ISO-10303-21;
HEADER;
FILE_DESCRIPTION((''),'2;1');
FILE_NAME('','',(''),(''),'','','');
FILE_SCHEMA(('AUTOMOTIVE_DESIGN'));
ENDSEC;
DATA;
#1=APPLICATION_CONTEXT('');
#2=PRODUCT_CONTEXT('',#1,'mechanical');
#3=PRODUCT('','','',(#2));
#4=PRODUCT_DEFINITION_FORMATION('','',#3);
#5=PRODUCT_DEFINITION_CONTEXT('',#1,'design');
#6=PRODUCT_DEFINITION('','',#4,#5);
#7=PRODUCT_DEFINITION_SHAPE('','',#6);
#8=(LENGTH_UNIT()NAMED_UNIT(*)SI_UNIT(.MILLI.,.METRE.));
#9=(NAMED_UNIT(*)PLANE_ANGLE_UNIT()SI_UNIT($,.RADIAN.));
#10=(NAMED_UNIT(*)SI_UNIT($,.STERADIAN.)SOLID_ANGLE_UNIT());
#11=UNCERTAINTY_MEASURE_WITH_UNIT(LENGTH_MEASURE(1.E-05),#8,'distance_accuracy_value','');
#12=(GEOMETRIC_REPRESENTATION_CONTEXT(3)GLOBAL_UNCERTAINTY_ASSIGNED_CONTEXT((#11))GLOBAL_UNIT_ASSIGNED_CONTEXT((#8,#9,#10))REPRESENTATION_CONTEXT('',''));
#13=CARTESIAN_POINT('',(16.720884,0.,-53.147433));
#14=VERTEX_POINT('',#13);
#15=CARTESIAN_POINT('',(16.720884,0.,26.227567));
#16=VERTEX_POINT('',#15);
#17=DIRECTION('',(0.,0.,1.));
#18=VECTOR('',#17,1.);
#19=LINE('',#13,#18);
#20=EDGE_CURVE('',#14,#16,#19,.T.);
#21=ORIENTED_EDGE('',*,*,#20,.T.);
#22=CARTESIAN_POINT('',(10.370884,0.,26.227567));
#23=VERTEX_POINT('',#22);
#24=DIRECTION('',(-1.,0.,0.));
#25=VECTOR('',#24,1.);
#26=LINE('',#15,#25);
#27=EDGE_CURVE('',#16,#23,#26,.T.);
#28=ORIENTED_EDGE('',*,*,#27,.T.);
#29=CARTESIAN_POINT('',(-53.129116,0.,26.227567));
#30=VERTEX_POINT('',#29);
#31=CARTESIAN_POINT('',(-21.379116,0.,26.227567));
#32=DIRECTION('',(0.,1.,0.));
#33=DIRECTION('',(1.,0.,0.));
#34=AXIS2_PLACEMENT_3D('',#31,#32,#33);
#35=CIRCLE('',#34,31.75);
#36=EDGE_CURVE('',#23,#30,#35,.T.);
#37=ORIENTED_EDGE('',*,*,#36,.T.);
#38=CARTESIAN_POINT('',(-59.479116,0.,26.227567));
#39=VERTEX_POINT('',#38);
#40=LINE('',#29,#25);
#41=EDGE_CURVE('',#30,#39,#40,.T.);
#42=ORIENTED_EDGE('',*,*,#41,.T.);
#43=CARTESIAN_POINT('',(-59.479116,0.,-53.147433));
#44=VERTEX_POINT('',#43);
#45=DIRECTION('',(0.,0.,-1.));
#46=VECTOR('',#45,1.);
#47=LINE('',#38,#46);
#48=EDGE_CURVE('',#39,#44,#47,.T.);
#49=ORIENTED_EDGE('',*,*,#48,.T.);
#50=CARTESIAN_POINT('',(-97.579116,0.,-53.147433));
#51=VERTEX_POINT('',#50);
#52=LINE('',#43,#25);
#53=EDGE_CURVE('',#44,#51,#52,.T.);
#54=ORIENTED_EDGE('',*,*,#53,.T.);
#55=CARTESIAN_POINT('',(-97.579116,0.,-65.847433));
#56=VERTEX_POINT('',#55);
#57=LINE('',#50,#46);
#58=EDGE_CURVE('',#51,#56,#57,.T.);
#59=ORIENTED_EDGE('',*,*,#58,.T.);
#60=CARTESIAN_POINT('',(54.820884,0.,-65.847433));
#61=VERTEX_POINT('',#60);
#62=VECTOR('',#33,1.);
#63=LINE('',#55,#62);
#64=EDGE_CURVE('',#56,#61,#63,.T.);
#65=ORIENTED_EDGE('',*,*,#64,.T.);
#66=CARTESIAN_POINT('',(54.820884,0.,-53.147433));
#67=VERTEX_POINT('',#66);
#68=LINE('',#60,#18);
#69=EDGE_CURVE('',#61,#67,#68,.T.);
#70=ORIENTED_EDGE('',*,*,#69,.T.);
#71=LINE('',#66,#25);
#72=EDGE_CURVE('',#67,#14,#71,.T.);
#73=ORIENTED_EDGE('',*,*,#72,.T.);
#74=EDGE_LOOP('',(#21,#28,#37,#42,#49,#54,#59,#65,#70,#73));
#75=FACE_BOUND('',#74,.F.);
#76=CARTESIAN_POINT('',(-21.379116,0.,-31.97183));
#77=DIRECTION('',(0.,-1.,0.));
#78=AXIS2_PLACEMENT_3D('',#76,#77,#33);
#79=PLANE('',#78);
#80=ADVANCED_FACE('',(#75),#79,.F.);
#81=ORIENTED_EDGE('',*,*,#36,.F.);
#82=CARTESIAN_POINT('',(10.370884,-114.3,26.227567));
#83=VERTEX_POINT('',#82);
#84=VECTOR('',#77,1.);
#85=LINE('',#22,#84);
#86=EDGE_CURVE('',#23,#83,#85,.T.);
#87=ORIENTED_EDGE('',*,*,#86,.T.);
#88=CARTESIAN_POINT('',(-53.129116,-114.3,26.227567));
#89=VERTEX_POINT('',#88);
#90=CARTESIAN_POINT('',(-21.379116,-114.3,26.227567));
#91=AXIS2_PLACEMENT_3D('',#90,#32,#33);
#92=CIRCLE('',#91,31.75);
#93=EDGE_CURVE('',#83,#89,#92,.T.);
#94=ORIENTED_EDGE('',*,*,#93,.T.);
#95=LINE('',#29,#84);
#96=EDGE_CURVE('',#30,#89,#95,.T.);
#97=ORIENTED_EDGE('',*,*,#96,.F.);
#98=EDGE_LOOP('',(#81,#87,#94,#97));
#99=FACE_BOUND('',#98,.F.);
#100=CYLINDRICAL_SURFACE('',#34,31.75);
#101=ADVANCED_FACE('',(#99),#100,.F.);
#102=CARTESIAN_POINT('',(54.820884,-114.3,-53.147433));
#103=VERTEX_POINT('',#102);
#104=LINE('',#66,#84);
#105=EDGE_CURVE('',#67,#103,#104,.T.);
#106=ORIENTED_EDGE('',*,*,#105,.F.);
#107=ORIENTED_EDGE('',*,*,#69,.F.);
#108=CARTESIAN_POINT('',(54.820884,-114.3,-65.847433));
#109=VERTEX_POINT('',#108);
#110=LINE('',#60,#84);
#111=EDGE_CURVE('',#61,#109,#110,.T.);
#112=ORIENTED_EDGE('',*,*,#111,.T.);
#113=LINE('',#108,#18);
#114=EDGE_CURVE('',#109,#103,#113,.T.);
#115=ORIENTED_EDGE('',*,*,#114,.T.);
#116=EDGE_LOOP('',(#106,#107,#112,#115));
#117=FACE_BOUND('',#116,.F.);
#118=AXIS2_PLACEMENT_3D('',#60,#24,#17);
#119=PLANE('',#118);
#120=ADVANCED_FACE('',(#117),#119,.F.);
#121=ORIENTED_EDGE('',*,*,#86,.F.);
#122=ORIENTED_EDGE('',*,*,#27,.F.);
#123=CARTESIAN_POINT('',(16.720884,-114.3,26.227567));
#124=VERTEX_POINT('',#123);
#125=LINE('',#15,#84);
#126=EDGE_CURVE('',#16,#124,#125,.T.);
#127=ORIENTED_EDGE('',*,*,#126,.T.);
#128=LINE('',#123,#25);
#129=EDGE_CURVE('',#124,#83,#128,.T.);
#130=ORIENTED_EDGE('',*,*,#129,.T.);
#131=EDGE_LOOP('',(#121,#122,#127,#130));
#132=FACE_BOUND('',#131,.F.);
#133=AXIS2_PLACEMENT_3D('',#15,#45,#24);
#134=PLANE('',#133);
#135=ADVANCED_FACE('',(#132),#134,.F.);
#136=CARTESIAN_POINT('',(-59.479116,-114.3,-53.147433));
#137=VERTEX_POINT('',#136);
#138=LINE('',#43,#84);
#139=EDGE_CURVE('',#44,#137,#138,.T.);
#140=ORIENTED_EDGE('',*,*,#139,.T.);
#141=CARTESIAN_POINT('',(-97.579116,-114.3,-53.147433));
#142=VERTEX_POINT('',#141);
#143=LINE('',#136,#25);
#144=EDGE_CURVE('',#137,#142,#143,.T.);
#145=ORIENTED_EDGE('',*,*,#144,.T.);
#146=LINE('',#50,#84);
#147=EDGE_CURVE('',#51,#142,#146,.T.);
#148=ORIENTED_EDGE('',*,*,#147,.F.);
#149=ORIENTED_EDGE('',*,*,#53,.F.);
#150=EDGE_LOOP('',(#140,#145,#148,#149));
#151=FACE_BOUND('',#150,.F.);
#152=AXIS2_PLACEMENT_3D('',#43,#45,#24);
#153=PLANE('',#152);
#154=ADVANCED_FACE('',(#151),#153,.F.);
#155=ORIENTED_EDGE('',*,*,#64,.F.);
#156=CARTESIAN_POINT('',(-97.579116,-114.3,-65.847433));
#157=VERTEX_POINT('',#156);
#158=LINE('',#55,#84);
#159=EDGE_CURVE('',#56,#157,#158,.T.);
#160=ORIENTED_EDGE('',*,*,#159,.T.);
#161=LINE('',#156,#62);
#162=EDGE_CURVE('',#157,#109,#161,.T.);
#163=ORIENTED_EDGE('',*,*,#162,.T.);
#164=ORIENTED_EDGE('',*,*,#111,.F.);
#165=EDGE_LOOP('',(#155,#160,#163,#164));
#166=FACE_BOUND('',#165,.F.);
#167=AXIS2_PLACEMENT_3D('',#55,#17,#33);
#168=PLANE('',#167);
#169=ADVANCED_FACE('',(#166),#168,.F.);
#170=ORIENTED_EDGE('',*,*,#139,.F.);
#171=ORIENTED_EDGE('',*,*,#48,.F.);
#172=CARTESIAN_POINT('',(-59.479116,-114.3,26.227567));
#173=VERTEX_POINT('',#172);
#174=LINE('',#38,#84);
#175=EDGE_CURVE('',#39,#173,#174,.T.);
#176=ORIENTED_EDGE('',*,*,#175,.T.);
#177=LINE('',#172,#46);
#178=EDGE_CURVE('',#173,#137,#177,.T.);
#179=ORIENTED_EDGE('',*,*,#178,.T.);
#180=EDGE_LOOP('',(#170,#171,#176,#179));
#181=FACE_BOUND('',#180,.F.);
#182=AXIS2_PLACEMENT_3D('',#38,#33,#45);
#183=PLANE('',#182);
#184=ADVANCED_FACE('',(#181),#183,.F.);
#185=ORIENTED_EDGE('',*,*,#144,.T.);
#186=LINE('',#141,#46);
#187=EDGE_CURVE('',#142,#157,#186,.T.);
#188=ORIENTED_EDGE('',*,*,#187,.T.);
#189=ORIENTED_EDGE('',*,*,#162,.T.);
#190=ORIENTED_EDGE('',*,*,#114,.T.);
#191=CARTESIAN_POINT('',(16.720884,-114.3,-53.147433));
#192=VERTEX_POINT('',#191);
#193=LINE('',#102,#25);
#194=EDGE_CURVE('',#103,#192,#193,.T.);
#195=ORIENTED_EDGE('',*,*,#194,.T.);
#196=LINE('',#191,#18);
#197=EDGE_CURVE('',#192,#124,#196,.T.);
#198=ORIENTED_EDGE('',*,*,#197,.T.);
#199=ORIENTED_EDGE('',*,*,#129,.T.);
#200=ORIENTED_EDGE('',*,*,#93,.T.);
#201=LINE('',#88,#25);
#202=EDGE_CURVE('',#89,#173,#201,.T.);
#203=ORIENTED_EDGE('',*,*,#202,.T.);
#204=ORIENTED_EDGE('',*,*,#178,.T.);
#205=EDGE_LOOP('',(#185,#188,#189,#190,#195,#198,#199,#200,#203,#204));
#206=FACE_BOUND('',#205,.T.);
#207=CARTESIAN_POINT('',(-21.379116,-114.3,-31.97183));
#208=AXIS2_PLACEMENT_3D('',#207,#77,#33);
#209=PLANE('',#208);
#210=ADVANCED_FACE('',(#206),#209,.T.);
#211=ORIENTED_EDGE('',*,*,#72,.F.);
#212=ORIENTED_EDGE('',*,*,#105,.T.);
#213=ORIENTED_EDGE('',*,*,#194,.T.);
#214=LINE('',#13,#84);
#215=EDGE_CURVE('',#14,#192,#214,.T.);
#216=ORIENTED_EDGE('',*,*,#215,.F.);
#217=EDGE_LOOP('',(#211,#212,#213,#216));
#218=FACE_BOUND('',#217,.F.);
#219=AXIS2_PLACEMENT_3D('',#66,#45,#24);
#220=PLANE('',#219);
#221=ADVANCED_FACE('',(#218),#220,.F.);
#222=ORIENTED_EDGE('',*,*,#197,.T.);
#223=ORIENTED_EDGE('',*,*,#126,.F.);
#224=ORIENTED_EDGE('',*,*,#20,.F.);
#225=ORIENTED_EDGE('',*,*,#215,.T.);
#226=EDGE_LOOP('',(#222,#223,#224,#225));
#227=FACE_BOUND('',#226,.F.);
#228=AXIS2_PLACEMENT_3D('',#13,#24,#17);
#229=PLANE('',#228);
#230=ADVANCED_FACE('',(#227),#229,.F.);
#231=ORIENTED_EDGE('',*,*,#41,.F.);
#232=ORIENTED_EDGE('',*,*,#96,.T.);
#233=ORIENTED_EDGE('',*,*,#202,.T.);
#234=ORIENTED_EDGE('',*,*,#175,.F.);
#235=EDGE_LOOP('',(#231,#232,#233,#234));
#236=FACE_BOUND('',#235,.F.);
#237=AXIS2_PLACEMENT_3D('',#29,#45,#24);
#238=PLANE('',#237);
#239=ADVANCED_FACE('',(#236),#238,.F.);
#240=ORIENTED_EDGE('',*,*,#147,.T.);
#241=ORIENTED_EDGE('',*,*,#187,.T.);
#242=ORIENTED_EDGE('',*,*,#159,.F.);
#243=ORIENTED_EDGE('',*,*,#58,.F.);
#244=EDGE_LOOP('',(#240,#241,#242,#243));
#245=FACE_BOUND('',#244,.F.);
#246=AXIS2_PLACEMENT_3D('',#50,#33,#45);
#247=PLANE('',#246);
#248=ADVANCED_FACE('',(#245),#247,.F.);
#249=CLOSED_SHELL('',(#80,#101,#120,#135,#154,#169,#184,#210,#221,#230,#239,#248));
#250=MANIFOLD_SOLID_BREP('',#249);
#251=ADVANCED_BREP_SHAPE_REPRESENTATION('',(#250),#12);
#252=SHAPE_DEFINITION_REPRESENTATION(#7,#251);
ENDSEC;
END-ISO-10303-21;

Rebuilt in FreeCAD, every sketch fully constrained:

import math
import FreeCAD as App
import Part
import Sketcher
from FreeCAD import Vector
Q = App.Units.Quantity

doc = App.newDocument("Part")
params = doc.addObject("Spreadsheet::Sheet", "Params")
for row, (alias, value) in enumerate([
    ("sketch1_width", "6 in"),
    ("sketch1_radius", "1.25 in"),
    ("sketch1_width2", "1.5 in"),
    ("sketch1_height", "0.5 in"),
    ("sketch1_height2", "3.125 in"),
    ("pad1_length", "4.5 in"),
], start=1):
    params.set(f"A{row}", alias)
    params.set(f"B{row}", "=" + value)
    params.setAlias(f"B{row}", alias)

body = doc.addObject("PartDesign::Body", "Body")

sketch1 = body.newObject("Sketcher::SketchObject", "Sketch")
sketch1.AttachmentSupport = (doc.getObject("XZ_Plane"), [""])
sketch1.MapMode = "FlatFace"
sketch1.addGeometry(Part.LineSegment(Vector(-97.579116, -53.147433, 0), Vector(-97.579116, -65.847433, 0)), False)
sketch1.addGeometry(Part.LineSegment(Vector(-97.579116, -65.847433, 0), Vector(54.820884, -65.847433, 0)), False)
sketch1.addGeometry(Part.LineSegment(Vector(54.820884, -65.847433, 0), Vector(54.820884, -53.147433, 0)), False)
sketch1.addGeometry(Part.LineSegment(Vector(54.820884, -53.147433, 0), Vector(16.720884, -53.147433, 0)), False)
sketch1.addGeometry(Part.LineSegment(Vector(16.720884, -53.147433, 0), Vector(16.720884, 26.227567, 0)), False)
sketch1.addGeometry(Part.LineSegment(Vector(16.720884, 26.227567, 0), Vector(10.370884, 26.227567, 0)), False)
sketch1.addGeometry(Part.ArcOfCircle(Part.Circle(Vector(-21.379116, 26.227567, 0), Vector(0, 0, 1), 31.75), math.radians(180), math.radians(360)), False)
sketch1.addGeometry(Part.LineSegment(Vector(-53.129116, 26.227567, 0), Vector(-59.479116, 26.227567, 0)), False)
sketch1.addGeometry(Part.LineSegment(Vector(-59.479116, 26.227567, 0), Vector(-59.479116, -53.147433, 0)), False)
sketch1.addGeometry(Part.LineSegment(Vector(-59.479116, -53.147433, 0), Vector(-97.579116, -53.147433, 0)), False)
sketch1.addConstraint(Sketcher.Constraint("Coincident", 0, 2, 1, 1))
sketch1.addConstraint(Sketcher.Constraint("Coincident", 1, 2, 2, 1))
sketch1.addConstraint(Sketcher.Constraint("Coincident", 2, 2, 3, 1))
sketch1.addConstraint(Sketcher.Constraint("Coincident", 3, 2, 4, 1))
sketch1.addConstraint(Sketcher.Constraint("Coincident", 4, 2, 5, 1))
sketch1.addConstraint(Sketcher.Constraint("Coincident", 5, 2, 6, 2))
sketch1.addConstraint(Sketcher.Constraint("Coincident", 6, 1, 7, 1))
sketch1.addConstraint(Sketcher.Constraint("Coincident", 7, 2, 8, 1))
sketch1.addConstraint(Sketcher.Constraint("Coincident", 8, 2, 9, 1))
sketch1.addConstraint(Sketcher.Constraint("Coincident", 9, 2, 0, 1))
sketch1.addConstraint(Sketcher.Constraint("Vertical", 0))
sketch1.addConstraint(Sketcher.Constraint("Horizontal", 1))
sketch1.addConstraint(Sketcher.Constraint("Vertical", 2))
sketch1.addConstraint(Sketcher.Constraint("Horizontal", 3))
sketch1.addConstraint(Sketcher.Constraint("Vertical", 4))
sketch1.addConstraint(Sketcher.Constraint("Horizontal", 5))
sketch1.addConstraint(Sketcher.Constraint("Horizontal", 7))
sketch1.addConstraint(Sketcher.Constraint("Vertical", 8))
sketch1.addConstraint(Sketcher.Constraint("Horizontal", 9))
sketch1.addConstraint(Sketcher.Constraint("Horizontal", 6, 3, 4, 2))
sketch1.addConstraint(Sketcher.Constraint("Horizontal", 5, 2, 6, 1))
sketch1.addConstraint(Sketcher.Constraint("Horizontal", 3, 2, 8, 2))
sketch1.addConstraint(Sketcher.Constraint("Equal", 5, 7))
sketch1.addConstraint(Sketcher.Constraint("Equal", 3, 9))
sketch1.addConstraint(Sketcher.Constraint("DistanceX", 1, 1, 1, 2, Q("6 in")))
sketch1.addConstraint(Sketcher.Constraint("Radius", 6, Q("1.25 in")))
sketch1.addConstraint(Sketcher.Constraint("DistanceX", 3, 2, 3, 1, Q("1.5 in")))
sketch1.addConstraint(Sketcher.Constraint("DistanceY", 0, 2, 0, 1, Q("0.5 in")))
sketch1.addConstraint(Sketcher.Constraint("DistanceY", 4, 1, 4, 2, Q("3.125 in")))
sketch1.addConstraint(Sketcher.Constraint("DistanceX", 6, 3, -1, 1, Q("21.379116 mm")))
sketch1.addConstraint(Sketcher.Constraint("DistanceY", -1, 1, 6, 3, Q("26.227567 mm")))
sketch1.setExpression("Constraints[24]", "Params.sketch1_width")
sketch1.setExpression("Constraints[25]", "Params.sketch1_radius")
sketch1.setExpression("Constraints[26]", "Params.sketch1_width2")
sketch1.setExpression("Constraints[27]", "Params.sketch1_height")
sketch1.setExpression("Constraints[28]", "Params.sketch1_height2")
pad1 = body.newObject("PartDesign::Pad", "Pad")
pad1.Profile = sketch1
pad1.setExpression("Length", "Params.pad1_length")

doc.recompute()
